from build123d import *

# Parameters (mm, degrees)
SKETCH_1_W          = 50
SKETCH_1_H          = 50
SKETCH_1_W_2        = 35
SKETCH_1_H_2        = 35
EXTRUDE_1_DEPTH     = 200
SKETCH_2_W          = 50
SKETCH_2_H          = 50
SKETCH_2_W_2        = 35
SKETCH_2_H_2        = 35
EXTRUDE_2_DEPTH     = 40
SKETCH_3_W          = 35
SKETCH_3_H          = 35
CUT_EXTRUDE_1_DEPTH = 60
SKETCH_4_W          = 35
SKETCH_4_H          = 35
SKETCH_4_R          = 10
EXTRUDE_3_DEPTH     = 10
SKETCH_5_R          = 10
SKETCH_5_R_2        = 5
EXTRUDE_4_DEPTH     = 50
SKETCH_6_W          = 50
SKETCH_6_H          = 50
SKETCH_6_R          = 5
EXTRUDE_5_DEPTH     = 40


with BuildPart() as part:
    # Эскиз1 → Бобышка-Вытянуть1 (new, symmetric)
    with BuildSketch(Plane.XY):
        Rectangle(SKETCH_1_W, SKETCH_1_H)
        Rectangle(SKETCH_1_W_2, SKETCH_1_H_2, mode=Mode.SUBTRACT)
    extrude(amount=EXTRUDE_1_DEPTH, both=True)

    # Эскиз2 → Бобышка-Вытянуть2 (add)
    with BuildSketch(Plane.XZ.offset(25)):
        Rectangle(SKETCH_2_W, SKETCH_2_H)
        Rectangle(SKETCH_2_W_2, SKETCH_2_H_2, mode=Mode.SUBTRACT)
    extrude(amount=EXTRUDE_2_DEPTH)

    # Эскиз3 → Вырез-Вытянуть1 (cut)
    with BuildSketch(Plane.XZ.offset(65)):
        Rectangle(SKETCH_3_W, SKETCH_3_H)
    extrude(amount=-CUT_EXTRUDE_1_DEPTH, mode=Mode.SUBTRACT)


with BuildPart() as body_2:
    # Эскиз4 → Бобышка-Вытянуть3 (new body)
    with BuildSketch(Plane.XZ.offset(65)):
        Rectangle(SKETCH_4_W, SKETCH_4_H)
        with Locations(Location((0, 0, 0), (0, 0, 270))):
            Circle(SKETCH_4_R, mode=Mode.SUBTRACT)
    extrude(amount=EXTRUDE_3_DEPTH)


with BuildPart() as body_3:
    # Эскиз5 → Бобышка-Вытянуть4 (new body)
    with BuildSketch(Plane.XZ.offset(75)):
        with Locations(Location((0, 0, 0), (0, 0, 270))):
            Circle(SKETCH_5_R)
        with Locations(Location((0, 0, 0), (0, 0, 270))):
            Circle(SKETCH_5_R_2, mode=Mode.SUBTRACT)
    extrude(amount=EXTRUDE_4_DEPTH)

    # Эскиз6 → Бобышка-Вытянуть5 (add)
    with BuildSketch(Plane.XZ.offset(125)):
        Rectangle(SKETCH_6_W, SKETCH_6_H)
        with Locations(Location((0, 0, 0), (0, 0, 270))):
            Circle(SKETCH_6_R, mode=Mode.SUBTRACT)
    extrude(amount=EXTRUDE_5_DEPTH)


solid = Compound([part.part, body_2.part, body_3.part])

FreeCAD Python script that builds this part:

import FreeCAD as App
import Part
import Sketcher

V = App.Vector


def add_polygon(sketch, points):
    """Adds a closed chain of lines whose ends are joined by coincident constraints."""
    first, n = sketch.GeometryCount, len(points)
    for a, b in zip(points, points[1:] + points[:1]):
        sketch.addGeometry(Part.LineSegment(App.Vector(*a, 0), App.Vector(*b, 0)), False)
    for i in range(n):
        sketch.addConstraint(Sketcher.Constraint("Coincident", first + i, 2, first + (i + 1) % n, 1))

doc = App.newDocument("Part")
params = doc.addObject("Spreadsheet::Sheet", "Params")
for row, (alias, value) in enumerate([
    ("sketch1_width", "50 mm"),
    ("sketch1_width2", "35 mm"),
    ("pad1_length", "400 mm"),
    ("sketch2_width", "50 mm"),
    ("sketch2_width2", "35 mm"),
    ("pad2_length", "40 mm"),
    ("sketch3_width", "35 mm"),
    ("pocket1_length", "60 mm"),
    ("sketch4_diameter", "20 mm"),
    ("sketch4_width", "35 mm"),
    ("pad3_length", "10 mm"),
    ("sketch5_diameter", "20 mm"),
    ("sketch5_diameter2", "10 mm"),
    ("pad4_length", "50 mm"),
    ("sketch6_diameter", "10 mm"),
    ("sketch6_width", "50 mm"),
    ("pad5_length", "40 mm"),
], start=1):
    params.set(f"A{row}", alias)
    params.set(f"B{row}", "=" + value)
    params.setAlias(f"B{row}", alias)

body = doc.addObject("PartDesign::Body", "Body")

sketch1 = body.newObject("Sketcher::SketchObject", "Sketch")
sketch1.AttachmentSupport = (doc.getObject("XY_Plane"), [""])
sketch1.MapMode = "FlatFace"
add_polygon(sketch1, [(-25, 25), (-25, -25), (25, -25), (25, 25)])
add_polygon(sketch1, [(17.5, -17.5), (-17.5, -17.5), (-17.5, 17.5), (17.5, 17.5)])
sketch1.addConstraint(Sketcher.Constraint("Vertical", 0))
sketch1.addConstraint(Sketcher.Constraint("Horizontal", 1))
sketch1.addConstraint(Sketcher.Constraint("Vertical", 2))
sketch1.addConstraint(Sketcher.Constraint("Horizontal", 3))
sketch1.addConstraint(Sketcher.Constraint("Horizontal", 4))
sketch1.addConstraint(Sketcher.Constraint("Vertical", 5))
sketch1.addConstraint(Sketcher.Constraint("Horizontal", 6))
sketch1.addConstraint(Sketcher.Constraint("Vertical", 7))
sketch1.addConstraint(Sketcher.Constraint("Symmetric", 0, 2, 2, 2, -1, 1))
sketch1.addConstraint(Sketcher.Constraint("Symmetric", 4, 2, 6, 2, -1, 1))
sketch1.addConstraint(Sketcher.Constraint("Equal", 3, 0))
sketch1.addConstraint(Sketcher.Constraint("Equal", 6, 5))
sketch1.addConstraint(Sketcher.Constraint("DistanceX", 1, 1, 1, 2, 50.0))
sketch1.addConstraint(Sketcher.Constraint("DistanceX", 4, 2, 4, 1, 35.0))
sketch1.setExpression("Constraints[20]", "Params.sketch1_width")
sketch1.setExpression("Constraints[21]", "Params.sketch1_width2")
pad1 = body.newObject("PartDesign::Pad", "Pad")
pad1.Profile = sketch1
pad1.setExpression("Length", "Params.pad1_length")
pad1.Midplane = True

sketch2 = body.newObject("Sketcher::SketchObject", "Sketch001")
sketch2.AttachmentSupport = (doc.getObject("XZ_Plane"), [""])
sketch2.MapMode = "FlatFace"
sketch2.AttachmentOffset = App.Placement(V(0, 0, 25), App.Rotation())
add_polygon(sketch2, [(-25, 25), (-25, -25), (25, -25), (25, 25)])
add_polygon(sketch2, [(17.5, -17.5), (-17.5, -17.5), (-17.5, 17.5), (17.5, 17.5)])
sketch2.addConstraint(Sketcher.Constraint("Vertical", 0))
sketch2.addConstraint(Sketcher.Constraint("Horizontal", 1))
sketch2.addConstraint(Sketcher.Constraint("Vertical", 2))
sketch2.addConstraint(Sketcher.Constraint("Horizontal", 3))
sketch2.addConstraint(Sketcher.Constraint("Horizontal", 4))
sketch2.addConstraint(Sketcher.Constraint("Vertical", 5))
sketch2.addConstraint(Sketcher.Constraint("Horizontal", 6))
sketch2.addConstraint(Sketcher.Constraint("Vertical", 7))
sketch2.addConstraint(Sketcher.Constraint("Symmetric", 0, 2, 2, 2, -1, 1))
sketch2.addConstraint(Sketcher.Constraint("Symmetric", 4, 2, 6, 2, -1, 1))
sketch2.addConstraint(Sketcher.Constraint("Equal", 3, 0))
sketch2.addConstraint(Sketcher.Constraint("Equal", 6, 5))
sketch2.addConstraint(Sketcher.Constraint("DistanceX", 1, 1, 1, 2, 50.0))
sketch2.addConstraint(Sketcher.Constraint("DistanceX", 4, 2, 4, 1, 35.0))
sketch2.setExpression("Constraints[20]", "Params.sketch2_width")
sketch2.setExpression("Constraints[21]", "Params.sketch2_width2")
pad2 = body.newObject("PartDesign::Pad", "Pad001")
pad2.Profile = sketch2
pad2.setExpression("Length", "Params.pad2_length")

sketch3 = body.newObject("Sketcher::SketchObject", "Sketch002")
sketch3.AttachmentSupport = (doc.getObject("XZ_Plane"), [""])
sketch3.MapMode = "FlatFace"
sketch3.AttachmentOffset = App.Placement(V(0, 0, 65), App.Rotation())
add_polygon(sketch3, [(-17.5, 17.5), (-17.5, -17.5), (17.5, -17.5), (17.5, 17.5)])
sketch3.addConstraint(Sketcher.Constraint("Vertical", 0))
sketch3.addConstraint(Sketcher.Constraint("Horizontal", 1))
sketch3.addConstraint(Sketcher.Constraint("Vertical", 2))
sketch3.addConstraint(Sketcher.Constraint("Horizontal", 3))
sketch3.addConstraint(Sketcher.Constraint("Symmetric", 0, 2, 2, 2, -1, 1))
sketch3.addConstraint(Sketcher.Constraint("Equal", 3, 0))
sketch3.addConstraint(Sketcher.Constraint("DistanceX", 1, 1, 1, 2, 35.0))
sketch3.setExpression("Constraints[10]", "Params.sketch3_width")
pocket1 = body.newObject("PartDesign::Pocket", "Pocket")
pocket1.Profile = sketch3
pocket1.setExpression("Length", "Params.pocket1_length")
body2 = doc.addObject("PartDesign::Body", "Body001")

sketch4 = body2.newObject("Sketcher::SketchObject", "Sketch003")
sketch4.AttachmentSupport = (doc.getObject("XZ_Plane001"), [""])
sketch4.MapMode = "FlatFace"
sketch4.AttachmentOffset = App.Placement(V(0, 0, 65), App.Rotation())
add_polygon(sketch4, [(-17.5, 17.5), (-17.5, -17.5), (17.5, -17.5), (17.5, 17.5)])
sketch4.addGeometry(Part.Circle(V(0, 0, 0), V(0, 0, 1), 10), False)
sketch4.addConstraint(Sketcher.Constraint("Vertical", 0))
sketch4.addConstraint(Sketcher.Constraint("Horizontal", 1))
sketch4.addConstraint(Sketcher.Constraint("Vertical", 2))
sketch4.addConstraint(Sketcher.Constraint("Horizontal", 3))
sketch4.addConstraint(Sketcher.Constraint("Coincident", 4, 3, -1, 1))
sketch4.addConstraint(Sketcher.Constraint("Symmetric", 0, 2, 2, 2, -1, 1))
sketch4.addConstraint(Sketcher.Constraint("Equal", 3, 0))
sketch4.addConstraint(Sketcher.Constraint("Diameter", 4, 20.0))
sketch4.addConstraint(Sketcher.Constraint("DistanceX", 1, 1, 1, 2, 35.0))
sketch4.setExpression("Constraints[11]", "Params.sketch4_diameter")
sketch4.setExpression("Constraints[12]", "Params.sketch4_width")
pad3 = body2.newObject("PartDesign::Pad", "Pad002")
pad3.Profile = sketch4
pad3.setExpression("Length", "Params.pad3_length")
body3 = doc.addObject("PartDesign::Body", "Body002")

sketch5 = body3.newObject("Sketcher::SketchObject", "Sketch004")
sketch5.AttachmentSupport = (doc.getObject("XZ_Plane002"), [""])
sketch5.MapMode = "FlatFace"
sketch5.AttachmentOffset = App.Placement(V(0, 0, 75), App.Rotation())
sketch5.addGeometry(Part.Circle(V(0, 0, 0), V(0, 0, 1), 10), False)
sketch5.addGeometry(Part.Circle(V(0, 0, 0), V(0, 0, 1), 5), False)
sketch5.addConstraint(Sketcher.Constraint("Coincident", 0, 3, -1, 1))
sketch5.addConstraint(Sketcher.Constraint("Coincident", 1, 3, -1, 1))
sketch5.addConstraint(Sketcher.Constraint("Diameter", 0, 20.0))
sketch5.addConstraint(Sketcher.Constraint("Diameter", 1, 10.0))
sketch5.setExpression("Constraints[2]", "Params.sketch5_diameter")
sketch5.setExpression("Constraints[3]", "Params.sketch5_diameter2")
pad4 = body3.newObject("PartDesign::Pad", "Pad003")
pad4.Profile = sketch5
pad4.setExpression("Length", "Params.pad4_length")

sketch6 = body3.newObject("Sketcher::SketchObject", "Sketch005")
sketch6.AttachmentSupport = (doc.getObject("XZ_Plane002"), [""])
sketch6.MapMode = "FlatFace"
sketch6.AttachmentOffset = App.Placement(V(0, 0, 125), App.Rotation())
add_polygon(sketch6, [(-25, 25), (-25, -25), (25, -25), (25, 25)])
sketch6.addGeometry(Part.Circle(V(0, 0, 0), V(0, 0, 1), 5), False)
sketch6.addConstraint(Sketcher.Constraint("Vertical", 0))
sketch6.addConstraint(Sketcher.Constraint("Horizontal", 1))
sketch6.addConstraint(Sketcher.Constraint("Vertical", 2))
sketch6.addConstraint(Sketcher.Constraint("Horizontal", 3))
sketch6.addConstraint(Sketcher.Constraint("Coincident", 4, 3, -1, 1))
sketch6.addConstraint(Sketcher.Constraint("Symmetric", 0, 2, 2, 2, -1, 1))
sketch6.addConstraint(Sketcher.Constraint("Equal", 3, 0))
sketch6.addConstraint(Sketcher.Constraint("Diameter", 4, 10.0))
sketch6.addConstraint(Sketcher.Constraint("DistanceX", 1, 1, 1, 2, 50.0))
sketch6.setExpression("Constraints[11]", "Params.sketch6_diameter")
sketch6.setExpression("Constraints[12]", "Params.sketch6_width")
pad5 = body3.newObject("PartDesign::Pad", "Pad004")
pad5.Profile = sketch6
pad5.setExpression("Length", "Params.pad5_length")

doc.recompute()
